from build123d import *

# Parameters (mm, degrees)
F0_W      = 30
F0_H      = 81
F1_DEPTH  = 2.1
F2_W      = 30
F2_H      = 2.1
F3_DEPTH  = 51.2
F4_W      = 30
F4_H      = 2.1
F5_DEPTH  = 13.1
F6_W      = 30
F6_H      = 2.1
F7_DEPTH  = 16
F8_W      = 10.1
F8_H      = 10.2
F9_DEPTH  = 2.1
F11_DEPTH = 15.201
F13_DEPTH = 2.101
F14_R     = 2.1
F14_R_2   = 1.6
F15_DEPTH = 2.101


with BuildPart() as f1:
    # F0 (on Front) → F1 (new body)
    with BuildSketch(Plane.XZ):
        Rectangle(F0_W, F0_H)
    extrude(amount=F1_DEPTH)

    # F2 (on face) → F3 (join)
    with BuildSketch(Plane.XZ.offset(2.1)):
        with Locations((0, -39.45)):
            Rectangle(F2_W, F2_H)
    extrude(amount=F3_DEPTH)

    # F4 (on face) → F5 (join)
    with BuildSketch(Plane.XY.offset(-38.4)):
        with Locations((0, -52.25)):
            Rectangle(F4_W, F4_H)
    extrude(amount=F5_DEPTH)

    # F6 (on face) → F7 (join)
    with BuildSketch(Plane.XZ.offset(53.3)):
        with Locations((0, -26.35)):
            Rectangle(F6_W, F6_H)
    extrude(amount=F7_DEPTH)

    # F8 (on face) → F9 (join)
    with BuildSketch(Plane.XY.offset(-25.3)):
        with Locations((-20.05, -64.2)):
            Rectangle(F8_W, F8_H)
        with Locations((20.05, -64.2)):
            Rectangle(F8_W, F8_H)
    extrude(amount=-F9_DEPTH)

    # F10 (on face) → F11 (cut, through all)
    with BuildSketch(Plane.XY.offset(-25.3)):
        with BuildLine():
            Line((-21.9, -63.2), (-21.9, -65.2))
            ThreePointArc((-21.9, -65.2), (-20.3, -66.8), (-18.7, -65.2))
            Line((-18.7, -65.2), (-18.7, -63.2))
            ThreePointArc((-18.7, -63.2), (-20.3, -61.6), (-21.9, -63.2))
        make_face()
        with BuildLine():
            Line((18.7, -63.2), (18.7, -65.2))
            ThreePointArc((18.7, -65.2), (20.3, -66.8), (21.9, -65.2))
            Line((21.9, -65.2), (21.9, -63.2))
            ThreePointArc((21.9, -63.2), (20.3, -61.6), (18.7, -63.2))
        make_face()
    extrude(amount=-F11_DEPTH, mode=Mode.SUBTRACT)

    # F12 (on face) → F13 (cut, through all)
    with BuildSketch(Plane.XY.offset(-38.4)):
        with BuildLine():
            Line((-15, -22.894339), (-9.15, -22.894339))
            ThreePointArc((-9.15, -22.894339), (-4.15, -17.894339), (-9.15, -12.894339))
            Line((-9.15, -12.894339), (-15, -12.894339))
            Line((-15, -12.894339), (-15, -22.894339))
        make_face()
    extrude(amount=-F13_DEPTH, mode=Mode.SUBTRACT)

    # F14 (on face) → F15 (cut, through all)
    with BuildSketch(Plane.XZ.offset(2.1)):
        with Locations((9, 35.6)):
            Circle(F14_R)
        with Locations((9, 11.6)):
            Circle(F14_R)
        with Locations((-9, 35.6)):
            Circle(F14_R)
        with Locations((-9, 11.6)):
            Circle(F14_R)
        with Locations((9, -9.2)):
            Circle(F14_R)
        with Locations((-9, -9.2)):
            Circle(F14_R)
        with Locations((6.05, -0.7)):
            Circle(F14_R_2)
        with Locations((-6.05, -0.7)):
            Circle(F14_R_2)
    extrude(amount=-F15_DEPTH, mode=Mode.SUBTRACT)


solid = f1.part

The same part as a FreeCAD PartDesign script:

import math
import FreeCAD as App
import Part
import Sketcher
from FreeCAD import Vector


def add_polygon(sketch, points):
    """Adds a closed chain of lines whose ends are joined by coincident constraints."""
    first, n = sketch.GeometryCount, len(points)
    for a, b in zip(points, points[1:] + points[:1]):
        sketch.addGeometry(Part.LineSegment(App.Vector(*a, 0), App.Vector(*b, 0)), False)
    for i in range(n):
        sketch.addConstraint(Sketcher.Constraint("Coincident", first + i, 2, first + (i + 1) % n, 1))

doc = App.newDocument("Part")
params = doc.addObject("Spreadsheet::Sheet", "Params")
for row, (alias, value) in enumerate([
    ("sketch1_width", "30 mm"),
    ("sketch1_height", "81 mm"),
    ("pad1_length", "2.1 mm"),
    ("sketch2_width", "30 mm"),
    ("sketch2_height", "2.1 mm"),
    ("pad2_length", "51.2 mm"),
    ("sketch3_width", "30 mm"),
    ("sketch3_height", "2.1 mm"),
    ("pad3_length", "13.1 mm"),
    ("sketch4_width", "30 mm"),
    ("sketch4_height", "2.1 mm"),
    ("pad4_length", "16 mm"),
    ("sketch5_width", "10.1 mm"),
    ("sketch5_height", "10.2 mm"),
    ("pad5_length", "2.1 mm"),
    ("sketch6_radius", "1.6 mm"),
    ("sketch6_height", "2 mm"),
    ("sketch7_radius", "5 mm"),
    ("sketch7_width", "5.85 mm"),
    ("sketch8_diameter", "4.2 mm"),
    ("sketch8_diameter2", "3.2 mm"),
], start=1):
    params.set(f"A{row}", alias)
    params.set(f"B{row}", "=" + value)
    params.setAlias(f"B{row}", alias)

body = doc.addObject("PartDesign::Body", "Body")

sketch1 = body.newObject("Sketcher::SketchObject", "Sketch")
sketch1.AttachmentSupport = (doc.getObject("XZ_Plane"), [""])
sketch1.MapMode = "FlatFace"
add_polygon(sketch1, [(-15, 40), (-15, -40), (15, -40), (15, 40)])
sketch1.addConstraint([
    Sketcher.Constraint("Vertical", 0),
    Sketcher.Constraint("Horizontal", 1),
    Sketcher.Constraint("Vertical", 2),
    Sketcher.Constraint("Horizontal", 3),
    Sketcher.Constraint("Symmetric", 0, 2, 2, 2, -1, 1),
    Sketcher.Constraint("DistanceX", 1, 1, 1, 2, 30.0),
    Sketcher.Constraint("DistanceY", 0, 2, 0, 1, 81.0),
])
sketch1.setExpression("Constraints[9]", "Params.sketch1_width")
sketch1.setExpression("Constraints[10]", "Params.sketch1_height")
pad1 = body.newObject("PartDesign::Pad", "Pad")
pad1.Profile = sketch1
pad1.setExpression("Length", "Params.pad1_length")

sketch2 = body.newObject("Sketcher::SketchObject", "Sketch001")
sketch2.AttachmentSupport = (doc.getObject("XZ_Plane"), [""])
sketch2.MapMode = "FlatFace"
sketch2.AttachmentOffset = App.Placement(Vector(0, 0, 2.1), App.Rotation())
add_polygon(sketch2, [(-15, -38.4), (-15, -40.5), (15, -40.5), (15, -38.4)])
sketch2.addConstraint([
    Sketcher.Constraint("Vertical", 0),
    Sketcher.Constraint("Horizontal", 1),
    Sketcher.Constraint("Vertical", 2),
    Sketcher.Constraint("Horizontal", 3),
    Sketcher.Constraint("DistanceX", 1, 1, 1, 2, 30.0),
    Sketcher.Constraint("DistanceY", 0, 2, 0, 1, 2.1),
    Sketcher.Constraint("DistanceX", 0, 2, -1, 1, 15.0),
    Sketcher.Constraint("DistanceY", 0, 2, -1, 1, 40.5),
])
sketch2.setExpression("Constraints[8]", "Params.sketch2_width")
sketch2.setExpression("Constraints[9]", "Params.sketch2_height")
pad2 = body.newObject("PartDesign::Pad", "Pad001")
pad2.Profile = sketch2
pad2.setExpression("Length", "Params.pad2_length")

sketch3 = body.newObject("Sketcher::SketchObject", "Sketch002")
sketch3.AttachmentSupport = (doc.getObject("XY_Plane"), [""])
sketch3.MapMode = "FlatFace"
sketch3.AttachmentOffset = App.Placement(Vector(0, 0, -38.4), App.Rotation())
add_polygon(sketch3, [(-15, -51.2), (-15, -53.3), (15, -53.3), (15, -51.2)])
sketch3.addConstraint([
    Sketcher.Constraint("Vertical", 0),
    Sketcher.Constraint("Horizontal", 1),
    Sketcher.Constraint("Vertical", 2),
    Sketcher.Constraint("Horizontal", 3),
    Sketcher.Constraint("DistanceX", 1, 1, 1, 2, 30.0),
    Sketcher.Constraint("DistanceY", 0, 2, 0, 1, 2.1),
    Sketcher.Constraint("DistanceX", 0, 2, -1, 1, 15.0),
    Sketcher.Constraint("DistanceY", 0, 2, -1, 1, 53.3),
])
sketch3.setExpression("Constraints[8]", "Params.sketch3_width")
sketch3.setExpression("Constraints[9]", "Params.sketch3_height")
pad3 = body.newObject("PartDesign::Pad", "Pad002")
pad3.Profile = sketch3
pad3.setExpression("Length", "Params.pad3_length")

sketch4 = body.newObject("Sketcher::SketchObject", "Sketch003")
sketch4.AttachmentSupport = (doc.getObject("XZ_Plane"), [""])
sketch4.MapMode = "FlatFace"
sketch4.AttachmentOffset = App.Placement(Vector(0, 0, 53.3), App.Rotation())
add_polygon(sketch4, [(-15, -25.3), (-15, -27.4), (15, -27.4), (15, -25.3)])
sketch4.addConstraint([
    Sketcher.Constraint("Vertical", 0),
    Sketcher.Constraint("Horizontal", 1),
    Sketcher.Constraint("Vertical", 2),
    Sketcher.Constraint("Horizontal", 3),
    Sketcher.Constraint("DistanceX", 1, 1, 1, 2, 30.0),
    Sketcher.Constraint("DistanceY", 0, 2, 0, 1, 2.1),
    Sketcher.Constraint("DistanceX", 0, 2, -1, 1, 15.0),
    Sketcher.Constraint("DistanceY", 0, 2, -1, 1, 27.4),
])
sketch4.setExpression("Constraints[8]", "Params.sketch4_width")
sketch4.setExpression("Constraints[9]", "Params.sketch4_height")
pad4 = body.newObject("PartDesign::Pad", "Pad003")
pad4.Profile = sketch4
pad4.setExpression("Length", "Params.pad4_length")

sketch5 = body.newObject("Sketcher::SketchObject", "Sketch004")
sketch5.AttachmentSupport = (doc.getObject("XY_Plane"), [""])
sketch5.MapMode = "FlatFace"
sketch5.AttachmentOffset = App.Placement(Vector(0, 0, -25.3), App.Rotation())
add_polygon(sketch5, [(-25, -59), (-25, -69), (-15, -69), (-15, -59)])
add_polygon(sketch5, [(15, -59), (15, -69), (25, -69), (25, -59)])
sketch5.addConstraint([
    Sketcher.Constraint("Vertical", 0),
    Sketcher.Constraint("Horizontal", 1),
    Sketcher.Constraint("Vertical", 2),
    Sketcher.Constraint("Horizontal", 3),
    Sketcher.Constraint("Vertical", 4),
    Sketcher.Constraint("Horizontal", 5),
    Sketcher.Constraint("Vertical", 6),
    Sketcher.Constraint("Horizontal", 7),
    Sketcher.Constraint("Symmetric", 1, 2, 4, 2, -2),
    Sketcher.Constraint("Symmetric", 3, 2, 6, 2, -2),
    Sketcher.Constraint("DistanceX", 1, 1, 1, 2, 10.1),
    Sketcher.Constraint("DistanceY", 0, 2, 0, 1, 10.2),
    Sketcher.Constraint("DistanceX", 1, 2, -1, 1, 15.0),
    Sketcher.Constraint("DistanceY", 0, 2, -1, 1, 69.3),
])
sketch5.setExpression("Constraints[18]", "Params.sketch5_width")
sketch5.setExpression("Constraints[19]", "Params.sketch5_height")
pad5 = body.newObject("PartDesign::Pad", "Pad004")
pad5.Profile = sketch5
pad5.setExpression("Length", "Params.pad5_length")
pad5.Reversed = True

sketch6 = body.newObject("Sketcher::SketchObject", "Sketch005")
sketch6.AttachmentSupport = (doc.getObject("XY_Plane"), [""])
sketch6.MapMode = "FlatFace"
sketch6.AttachmentOffset = App.Placement(Vector(0, 0, -25.3), App.Rotation())
sketch6.addGeometry([
    Part.LineSegment(Vector(-21.9, -63.2, 0), Vector(-21.9, -65.2, 0)),
    Part.ArcOfCircle(Part.Circle(Vector(-20.3, -65.2, 0), Vector(0, 0, 1), 1.6), math.radians(180), math.radians(360)),
    Part.LineSegment(Vector(-18.7, -65.2, 0), Vector(-18.7, -63.2, 0)),
    Part.ArcOfCircle(Part.Circle(Vector(-20.3, -63.2, 0), Vector(0, 0, 1), 1.6), math.radians(0), math.radians(180)),
    Part.LineSegment(Vector(18.7, -63.2, 0), Vector(18.7, -65.2, 0)),
    Part.ArcOfCircle(Part.Circle(Vector(20.3, -65.2, 0), Vector(0, 0, 1), 1.6), math.radians(180), math.radians(360)),
    Part.LineSegment(Vector(21.9, -65.2, 0), Vector(21.9, -63.2, 0)),
    Part.ArcOfCircle(Part.Circle(Vector(20.3, -63.2, 0), Vector(0, 0, 1), 1.6), math.radians(0), math.radians(180)),
], False)
sketch6.addConstraint([
    Sketcher.Constraint("Tangent", 0, 2, 1, 1),
    Sketcher.Constraint("Tangent", 1, 2, 2, 1),
    Sketcher.Constraint("Tangent", 2, 2, 3, 1),
    Sketcher.Constraint("Tangent", 3, 2, 0, 1),
    Sketcher.Constraint("Tangent", 4, 2, 5, 1),
    Sketcher.Constraint("Tangent", 5, 2, 6, 1),
    Sketcher.Constraint("Tangent", 6, 2, 7, 1),
    Sketcher.Constraint("Tangent", 7, 2, 4, 1),
    Sketcher.Constraint("Vertical", 0),
    Sketcher.Constraint("Vertical", 2),
    Sketcher.Constraint("Vertical", 4),
    Sketcher.Constraint("Vertical", 6),
    Sketcher.Constraint("Equal", 3, 5),
    Sketcher.Constraint("Symmetric", 1, 3, 5, 3, -2),
    Sketcher.Constraint("Horizontal", 3, 3, 7, 3),
    Sketcher.Constraint("Radius", 1, 1.6),
    Sketcher.Constraint("DistanceY", 0, 2, 0, 1, 2.0),
    Sketcher.Constraint("DistanceX", 1, 2, 5, 3, 39.0),
    Sketcher.Constraint("DistanceY", 1, 3, -1, 1, 65.2),
])
sketch6.setExpression("Constraints[15]", "Params.sketch6_radius")
sketch6.setExpression("Constraints[16]", "Params.sketch6_height")
pocket1 = body.newObject("PartDesign::Pocket", "Pocket")
pocket1.Profile = sketch6
pocket1.Type = "ThroughAll"

sketch7 = body.newObject("Sketcher::SketchObject", "Sketch006")
sketch7.AttachmentSupport = (doc.getObject("XY_Plane"), [""])
sketch7.MapMode = "FlatFace"
sketch7.AttachmentOffset = App.Placement(Vector(0, 0, -38.4), App.Rotation())
sketch7.addGeometry([
    Part.LineSegment(Vector(-15, -23, 0), Vector(-9, -23, 0)),
    Part.ArcOfCircle(Part.Circle(Vector(-9, -18, 0), Vector(0, 0, 1), 5), math.radians(-90), math.radians(90)),
    Part.LineSegment(Vector(-9, -13, 0), Vector(-15, -13, 0)),
    Part.LineSegment(Vector(-15, -13, 0), Vector(-15, -23, 0)),
], False)
sketch7.addConstraint([
    Sketcher.Constraint("Tangent", 0, 2, 1, 1),
    Sketcher.Constraint("Tangent", 1, 2, 2, 1),
    Sketcher.Constraint("Coincident", 2, 2, 3, 1),
    Sketcher.Constraint("Coincident", 3, 2, 0, 1),
    Sketcher.Constraint("Horizontal", 0),
    Sketcher.Constraint("Horizontal", 2),
    Sketcher.Constraint("Vertical", 3),
    Sketcher.Constraint("Radius", 1, 5.0),
    Sketcher.Constraint("DistanceX", 2, 2, -1, 1, 15.0),
    Sketcher.Constraint("DistanceX", 0, 1, 0, 2, 5.85),
    Sketcher.Constraint("DistanceY", 1, 3, -1, 1, 17.894339),
])
sketch7.setExpression("Constraints[7]", "Params.sketch7_radius")
sketch7.setExpression("Constraints[9]", "Params.sketch7_width")
pocket2 = body.newObject("PartDesign::Pocket", "Pocket001")
pocket2.Profile = sketch7
pocket2.Type = "ThroughAll"

sketch8 = body.newObject("Sketcher::SketchObject", "Sketch007")
sketch8.AttachmentSupport = (doc.getObject("XZ_Plane"), [""])
sketch8.MapMode = "FlatFace"
sketch8.AttachmentOffset = App.Placement(Vector(0, 0, 2.1), App.Rotation())
sketch8.addGeometry([
    Part.Circle(Vector(9, 35.6, 0), Vector(0, 0, 1), 2.1),
    Part.Circle(Vector(9, 11.6, 0), Vector(0, 0, 1), 2.1),
    Part.Circle(Vector(-9, 35.6, 0), Vector(0, 0, 1), 2.1),
    Part.Circle(Vector(-9, 11.6, 0), Vector(0, 0, 1), 2.1),
    Part.Circle(Vector(9, -9.2, 0), Vector(0, 0, 1), 2.1),
    Part.Circle(Vector(-9, -9.2, 0), Vector(0, 0, 1), 2.1),
    Part.Circle(Vector(6, -0.7, 0), Vector(0, 0, 1), 1.6),
    Part.Circle(Vector(-6, -0.7, 0), Vector(0, 0, 1), 1.6),
], False)
sketch8.addConstraint([
    Sketcher.Constraint("Equal", 0, 1),
    Sketcher.Constraint("Equal", 1, 2),
    Sketcher.Constraint("Equal", 2, 3),
    Sketcher.Constraint("Equal", 3, 4),
    Sketcher.Constraint("Equal", 4, 5),
    Sketcher.Constraint("Equal", 6, 7),
    Sketcher.Constraint("Symmetric", 0, 3, 2, 3, -2),
    Sketcher.Constraint("Symmetric", 1, 3, 3, 3, -2),
    Sketcher.Constraint("Symmetric", 4, 3, 5, 3, -2),
    Sketcher.Constraint("Symmetric", 6, 3, 7, 3, -2),
    Sketcher.Constraint("Vertical", 0, 3, 1, 3),
    Sketcher.Constraint("Vertical", 1, 3, 4, 3),
    Sketcher.Constraint("Diameter", 0, 4.2),
    Sketcher.Constraint("Diameter", 6, 3.2),
    Sketcher.Constraint("DistanceX", -1, 1, 0, 3, 9.0),
    Sketcher.Constraint("DistanceY", 1, 3, 0, 3, 24.0),
    Sketcher.Constraint("DistanceY", -1, 1, 0, 3, 35.6),
    Sketcher.Constraint("DistanceY", 4, 3, -1, 1, 9.2),
    Sketcher.Constraint("DistanceY", 6, 3, -1, 1, 0.7),
    Sketcher.Constraint("DistanceX", 7, 3, 6, 3, 12.1),
])
sketch8.setExpression("Constraints[12]", "Params.sketch8_diameter")
sketch8.setExpression("Constraints[13]", "Params.sketch8_diameter2")
pocket3 = body.newObject("PartDesign::Pocket", "Pocket002")
pocket3.Profile = sketch8
pocket3.Type = "ThroughAll"

doc.recompute()
